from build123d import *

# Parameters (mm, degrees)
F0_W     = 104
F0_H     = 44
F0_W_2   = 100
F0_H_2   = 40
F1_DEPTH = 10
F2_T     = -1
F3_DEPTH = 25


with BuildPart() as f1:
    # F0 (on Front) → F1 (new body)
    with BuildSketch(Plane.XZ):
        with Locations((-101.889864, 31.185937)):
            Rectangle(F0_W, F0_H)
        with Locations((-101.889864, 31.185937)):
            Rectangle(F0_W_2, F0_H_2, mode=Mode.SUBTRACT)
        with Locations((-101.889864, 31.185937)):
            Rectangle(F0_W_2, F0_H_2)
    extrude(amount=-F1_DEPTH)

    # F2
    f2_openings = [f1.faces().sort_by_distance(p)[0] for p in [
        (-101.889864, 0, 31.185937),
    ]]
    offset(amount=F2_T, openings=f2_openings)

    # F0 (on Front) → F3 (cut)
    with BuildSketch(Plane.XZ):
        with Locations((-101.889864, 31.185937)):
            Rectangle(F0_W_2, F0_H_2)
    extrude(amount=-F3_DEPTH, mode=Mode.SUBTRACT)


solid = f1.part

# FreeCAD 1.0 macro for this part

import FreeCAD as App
import Part
import Sketcher
Q = App.Units.Quantity


def faces_at(feature, points):
    """Names of the faces that lie closest to the given points."""
    faces = feature.Shape.Faces
    near = lambda p: min(range(len(faces)), key=lambda i: faces[i].distToShape(Part.Vertex(*p))[0])
    return sorted({f"Face{near(p) + 1}" for p in points})


def add_polygon(sketch, points):
    """Adds a closed chain of lines whose ends are joined by coincident constraints."""
    first, n = sketch.GeometryCount, len(points)
    for a, b in zip(points, points[1:] + points[:1]):
        sketch.addGeometry(Part.LineSegment(App.Vector(*a, 0), App.Vector(*b, 0)), False)
    for i in range(n):
        sketch.addConstraint(Sketcher.Constraint("Coincident", first + i, 2, first + (i + 1) % n, 1))

doc = App.newDocument("Part")
params = doc.addObject("Spreadsheet::Sheet", "Params")
for row, (alias, value) in enumerate([
    ("sketch1_width", "104 mm"),
    ("sketch1_height", "44 mm"),
    ("pad1_length", "10 mm"),
    ("thickness_wall", "1 mm"),
    ("sketch2_width", "100 mm"),
    ("sketch2_height", "40 mm"),
    ("pocket1_length", "25 mm"),
], start=1):
    params.set(f"A{row}", alias)
    params.set(f"B{row}", "=" + value)
    params.setAlias(f"B{row}", alias)

body = doc.addObject("PartDesign::Body", "Body")

# Sketch on XZ plane
sketch1 = doc.addObject("Sketcher::SketchObject", "Sketch")
body.addObject(sketch1)
sketch1.AttachmentSupport = (doc.XZ_Plane, [""])
sketch1.MapMode = "FlatFace"
add_polygon(sketch1, [(-153.889864, 53.185937), (-153.889864, 9.185937), (-49.889864, 9.185937), (-49.889864, 53.185937)])  # lines 0-3
sketch1.addConstraint([
    Sketcher.Constraint("Vertical", 0),
    Sketcher.Constraint("Horizontal", 1),
    Sketcher.Constraint("Vertical", 2),
    Sketcher.Constraint("Horizontal", 3),
    Sketcher.Constraint("DistanceX", 1, 1, 1, 2, Q("104 mm")),
    Sketcher.Constraint("DistanceY", 0, 2, 0, 1, Q("44 mm")),
    Sketcher.Constraint("DistanceX", 0, 2, -1, 1, Q("153.889864 mm")),
    Sketcher.Constraint("DistanceY", -1, 1, 0, 2, Q("9.185937 mm")),
])
sketch1.setExpression("Constraints[8]", "Params.sketch1_width")
sketch1.setExpression("Constraints[9]", "Params.sketch1_height")
pad1 = doc.addObject("PartDesign::Pad", "Pad")
body.addObject(pad1)
pad1.Profile = sketch1
pad1.setExpression("Length", "Params.pad1_length")
pad1.Reversed = True
doc.recompute()

thickness = doc.addObject("PartDesign::Thickness", "Thickness")
body.addObject(thickness)
thickness.Base = (pad1, faces_at(pad1, [(-101.89, 0, 31.186)]))
thickness.setExpression("Value", "Params.thickness_wall")
thickness.Reversed = True
thickness.Join = "Arc"

# Sketch on XZ plane
sketch2 = doc.addObject("Sketcher::SketchObject", "Sketch001")
body.addObject(sketch2)
sketch2.AttachmentSupport = (doc.XZ_Plane, [""])
sketch2.MapMode = "FlatFace"
add_polygon(sketch2, [(-151.889864, 51.185937), (-151.889864, 11.185937), (-51.889864, 11.185937), (-51.889864, 51.185937)])  # lines 0-3
sketch2.addConstraint([
    Sketcher.Constraint("Vertical", 0),
    Sketcher.Constraint("Horizontal", 1),
    Sketcher.Constraint("Vertical", 2),
    Sketcher.Constraint("Horizontal", 3),
    Sketcher.Constraint("DistanceX", 1, 1, 1, 2, Q("100 mm")),
    Sketcher.Constraint("DistanceY", 0, 2, 0, 1, Q("40 mm")),
    Sketcher.Constraint("DistanceX", 0, 2, -1, 1, Q("151.889864 mm")),
    Sketcher.Constraint("DistanceY", -1, 1, 0, 2, Q("11.185937 mm")),
])
sketch2.setExpression("Constraints[8]", "Params.sketch2_width")
sketch2.setExpression("Constraints[9]", "Params.sketch2_height")
pocket1 = doc.addObject("PartDesign::Pocket", "Pocket")
body.addObject(pocket1)
pocket1.Profile = sketch2
pocket1.setExpression("Length", "Params.pocket1_length")

doc.recompute()
